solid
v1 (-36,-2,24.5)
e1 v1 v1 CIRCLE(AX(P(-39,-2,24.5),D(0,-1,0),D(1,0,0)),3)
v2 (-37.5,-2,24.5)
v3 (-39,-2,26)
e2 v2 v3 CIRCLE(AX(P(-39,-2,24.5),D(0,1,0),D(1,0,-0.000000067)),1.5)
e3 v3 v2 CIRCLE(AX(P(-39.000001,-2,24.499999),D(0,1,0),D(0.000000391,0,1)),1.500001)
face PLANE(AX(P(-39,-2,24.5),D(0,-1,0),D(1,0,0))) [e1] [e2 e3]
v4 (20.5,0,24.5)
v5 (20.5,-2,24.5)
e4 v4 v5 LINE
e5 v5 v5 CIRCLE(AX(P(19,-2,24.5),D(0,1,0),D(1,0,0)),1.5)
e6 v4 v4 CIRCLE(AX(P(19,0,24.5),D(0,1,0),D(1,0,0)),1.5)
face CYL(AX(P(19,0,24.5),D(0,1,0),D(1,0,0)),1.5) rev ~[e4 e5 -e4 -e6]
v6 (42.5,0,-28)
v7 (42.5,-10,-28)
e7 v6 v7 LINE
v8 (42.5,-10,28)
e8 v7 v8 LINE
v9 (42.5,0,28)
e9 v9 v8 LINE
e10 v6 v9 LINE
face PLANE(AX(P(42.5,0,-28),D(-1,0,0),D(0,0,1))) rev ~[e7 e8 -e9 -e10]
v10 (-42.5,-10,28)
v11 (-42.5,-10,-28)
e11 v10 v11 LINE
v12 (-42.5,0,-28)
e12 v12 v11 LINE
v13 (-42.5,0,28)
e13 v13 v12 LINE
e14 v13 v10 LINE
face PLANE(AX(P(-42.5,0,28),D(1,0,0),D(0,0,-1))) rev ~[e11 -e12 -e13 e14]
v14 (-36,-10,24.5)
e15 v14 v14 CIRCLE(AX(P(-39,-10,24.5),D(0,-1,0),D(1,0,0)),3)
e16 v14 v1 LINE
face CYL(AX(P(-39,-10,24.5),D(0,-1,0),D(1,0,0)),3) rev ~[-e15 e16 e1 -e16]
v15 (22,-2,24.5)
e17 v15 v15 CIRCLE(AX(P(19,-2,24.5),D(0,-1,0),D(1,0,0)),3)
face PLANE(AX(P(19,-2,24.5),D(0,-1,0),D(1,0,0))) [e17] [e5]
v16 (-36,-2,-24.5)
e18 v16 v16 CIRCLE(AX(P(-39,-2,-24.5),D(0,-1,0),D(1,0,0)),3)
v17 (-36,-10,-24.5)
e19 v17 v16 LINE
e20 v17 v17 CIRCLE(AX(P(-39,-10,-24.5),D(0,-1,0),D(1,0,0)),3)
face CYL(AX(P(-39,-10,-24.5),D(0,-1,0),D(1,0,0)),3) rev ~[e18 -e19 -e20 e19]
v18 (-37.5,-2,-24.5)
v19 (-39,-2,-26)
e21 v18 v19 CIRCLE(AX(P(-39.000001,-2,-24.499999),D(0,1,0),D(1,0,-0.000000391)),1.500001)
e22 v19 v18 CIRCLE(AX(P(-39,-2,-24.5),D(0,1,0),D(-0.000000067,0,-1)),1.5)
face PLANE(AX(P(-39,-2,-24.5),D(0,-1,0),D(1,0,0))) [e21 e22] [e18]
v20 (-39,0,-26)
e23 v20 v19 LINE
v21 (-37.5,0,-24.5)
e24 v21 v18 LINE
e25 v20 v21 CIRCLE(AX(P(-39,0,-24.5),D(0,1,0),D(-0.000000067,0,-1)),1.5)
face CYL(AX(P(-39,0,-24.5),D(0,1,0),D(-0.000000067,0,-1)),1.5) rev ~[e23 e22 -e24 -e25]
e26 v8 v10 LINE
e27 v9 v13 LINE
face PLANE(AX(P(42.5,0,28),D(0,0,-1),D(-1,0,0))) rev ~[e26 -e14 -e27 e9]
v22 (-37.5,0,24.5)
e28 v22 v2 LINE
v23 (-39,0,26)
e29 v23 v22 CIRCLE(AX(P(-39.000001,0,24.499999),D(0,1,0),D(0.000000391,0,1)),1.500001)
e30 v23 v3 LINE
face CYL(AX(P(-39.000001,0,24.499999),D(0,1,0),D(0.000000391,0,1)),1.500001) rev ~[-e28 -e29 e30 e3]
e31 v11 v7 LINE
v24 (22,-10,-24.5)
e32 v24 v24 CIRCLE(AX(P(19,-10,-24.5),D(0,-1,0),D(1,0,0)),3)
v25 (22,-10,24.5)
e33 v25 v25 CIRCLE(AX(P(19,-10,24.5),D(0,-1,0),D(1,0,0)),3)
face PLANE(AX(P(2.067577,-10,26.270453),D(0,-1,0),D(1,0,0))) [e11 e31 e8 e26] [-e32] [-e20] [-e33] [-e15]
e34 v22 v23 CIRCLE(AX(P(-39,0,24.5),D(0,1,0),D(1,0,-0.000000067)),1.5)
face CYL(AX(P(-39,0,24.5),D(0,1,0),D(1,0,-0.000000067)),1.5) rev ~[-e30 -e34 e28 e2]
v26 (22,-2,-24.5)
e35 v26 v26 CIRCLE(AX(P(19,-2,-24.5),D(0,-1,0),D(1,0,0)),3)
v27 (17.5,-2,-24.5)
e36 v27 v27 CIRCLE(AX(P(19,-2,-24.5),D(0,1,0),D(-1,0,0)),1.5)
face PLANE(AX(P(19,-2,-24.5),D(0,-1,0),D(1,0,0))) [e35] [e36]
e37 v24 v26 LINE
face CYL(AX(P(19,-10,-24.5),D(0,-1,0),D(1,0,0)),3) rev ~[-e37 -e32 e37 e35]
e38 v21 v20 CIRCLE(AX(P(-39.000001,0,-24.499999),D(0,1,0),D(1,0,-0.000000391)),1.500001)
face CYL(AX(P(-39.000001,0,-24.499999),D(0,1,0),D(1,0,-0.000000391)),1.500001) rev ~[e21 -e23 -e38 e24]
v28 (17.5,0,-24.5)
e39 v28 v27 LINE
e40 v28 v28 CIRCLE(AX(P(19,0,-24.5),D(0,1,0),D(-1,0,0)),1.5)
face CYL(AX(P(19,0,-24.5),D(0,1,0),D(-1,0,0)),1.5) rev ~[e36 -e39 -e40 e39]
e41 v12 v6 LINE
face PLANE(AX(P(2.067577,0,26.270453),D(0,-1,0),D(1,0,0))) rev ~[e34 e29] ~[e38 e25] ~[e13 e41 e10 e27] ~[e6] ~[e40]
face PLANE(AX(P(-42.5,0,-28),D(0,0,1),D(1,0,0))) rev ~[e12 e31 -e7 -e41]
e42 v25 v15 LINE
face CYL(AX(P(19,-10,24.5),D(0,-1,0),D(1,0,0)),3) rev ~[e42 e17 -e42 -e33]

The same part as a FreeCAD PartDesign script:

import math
import FreeCAD as App
import Part
import Sketcher
from FreeCAD import Vector
Q = App.Units.Quantity

doc = App.newDocument("Part")
body = doc.addObject("PartDesign::Body", "Body")

# Sketch on XZ plane
sketch1 = body.newObject("Sketcher::SketchObject", "Sketch")
sketch1.AttachmentSupport = (doc.getObject("XZ_Plane"), [""])
sketch1.MapMode = "FlatFace"
sketch1.addGeometry([
    Part.LineSegment(Vector(42.5, 28, 0), Vector(-42.5, 28, 0)),  # 0
    Part.LineSegment(Vector(-42.5, 28, 0), Vector(-42.5, -28, 0)),  # 1
    Part.LineSegment(Vector(-42.5, -28, 0), Vector(42.5, -28, 0)),  # 2
    Part.LineSegment(Vector(42.5, -28, 0), Vector(42.5, 28, 0)),  # 3
    Part.ArcOfCircle(Part.Circle(Vector(-39, -24.5, 0), Vector(0, 0, 1), 1.5), math.radians(0.000004), math.radians(269.999996)),  # 4
    Part.ArcOfCircle(Part.Circle(Vector(-39.000001, -24.499999, 0), Vector(0, 0, 1), 1.500001), math.radians(-89.999978), math.radians(-0.000022)),  # 5
    Part.Circle(Vector(19, -24.5, 0), Vector(0, 0, 1), 1.5),  # 6
    Part.ArcOfCircle(Part.Circle(Vector(-39.000001, 24.499999, 0), Vector(0, 0, 1), 1.500001), math.radians(0.000022), math.radians(89.999978)),  # 7
    Part.ArcOfCircle(Part.Circle(Vector(-39, 24.5, 0), Vector(0, 0, 1), 1.5), math.radians(90.000004), math.radians(359.999996)),  # 8
    Part.Circle(Vector(19, 24.5, 0), Vector(0, 0, 1), 1.5),  # 9
], False)
sketch1.addConstraint([
    Sketcher.Constraint("Coincident", 0, 2, 1, 1),
    Sketcher.Constraint("Coincident", 1, 2, 2, 1),
    Sketcher.Constraint("Coincident", 2, 2, 3, 1),
    Sketcher.Constraint("Coincident", 3, 2, 0, 1),
    Sketcher.Constraint("Tangent", 4, 1, 5, 2),
    Sketcher.Constraint("Coincident", 5, 1, 4, 2),
    Sketcher.Constraint("Tangent", 7, 1, 8, 2),
    Sketcher.Constraint("Coincident", 8, 1, 7, 2),
    Sketcher.Constraint("Horizontal", 0),
    Sketcher.Constraint("Vertical", 1),
    Sketcher.Constraint("Horizontal", 2),
    Sketcher.Constraint("Vertical", 3),
    Sketcher.Constraint("Equal", 5, 6),
    Sketcher.Constraint("Equal", 6, 7),
    Sketcher.Constraint("Equal", 8, 9),
    Sketcher.Constraint("Symmetric", 0, 2, 2, 2, -1, 1),
    Sketcher.Constraint("Symmetric", 4, 3, 7, 3, -1),
    Sketcher.Constraint("Symmetric", 6, 3, 9, 3, -1),
    Sketcher.Constraint("Horizontal", 5, 3, 6, 3),
    Sketcher.Constraint("Horizontal", 6, 3, 4, 1),
    Sketcher.Constraint("Horizontal", 9, 3, 7, 1),
    Sketcher.Constraint("Vertical", 8, 3, 5, 1),
    Sketcher.Constraint("Vertical", 5, 1, 8, 1),
    Sketcher.Constraint("Diameter", 6, Q("3 mm")),
    Sketcher.Constraint("DistanceX", 0, 2, 0, 1, Q("85 mm")),
    Sketcher.Constraint("DistanceY", 1, 2, 1, 1, Q("56 mm")),
    Sketcher.Constraint("DistanceX", 4, 3, -1, 1, Q("39 mm")),
    Sketcher.Constraint("DistanceX", -1, 1, 6, 3, Q("19 mm")),
    Sketcher.Constraint("DistanceY", 5, 1, -1, 1, Q("26 mm")),
])
pad1 = body.newObject("PartDesign::Pad", "Pad")
pad1.Profile = sketch1
pad1.Length = 10

# Sketch on XZ plane
sketch2 = body.newObject("Sketcher::SketchObject", "Sketch001")
sketch2.AttachmentSupport = (doc.getObject("XZ_Plane"), [""])
sketch2.MapMode = "FlatFace"
sketch2.AttachmentOffset = App.Placement(Vector(0, 0, 10), App.Rotation())
sketch2.addGeometry([
    Part.Circle(Vector(-39, 24.5, 0), Vector(0, 0, 1), 3),
    Part.Circle(Vector(19, 24.5, 0), Vector(0, 0, 1), 3),
    Part.Circle(Vector(19, -24.5, 0), Vector(0, 0, 1), 3),
    Part.Circle(Vector(-39, -24.5, 0), Vector(0, 0, 1), 3),
], False)
sketch2.addConstraint([
    Sketcher.Constraint("Equal", 0, 1),
    Sketcher.Constraint("Equal", 1, 2),
    Sketcher.Constraint("Equal", 2, 3),
    Sketcher.Constraint("Symmetric", 1, 3, 2, 3, -1),
    Sketcher.Constraint("Symmetric", 0, 3, 3, 3, -1),
    Sketcher.Constraint("Horizontal", 0, 3, 1, 3),
    Sketcher.Constraint("Diameter", 0, Q("6 mm")),
    Sketcher.Constraint("DistanceX", 0, 3, -1, 1, Q("39 mm")),
    Sketcher.Constraint("DistanceX", -1, 1, 1, 3, Q("19 mm")),
    Sketcher.Constraint("DistanceY", 2, 3, 1, 3, Q("49 mm")),
])
pocket1 = body.newObject("PartDesign::Pocket", "Pocket")
pocket1.Profile = sketch2
pocket1.Length = 8

doc.recompute()
